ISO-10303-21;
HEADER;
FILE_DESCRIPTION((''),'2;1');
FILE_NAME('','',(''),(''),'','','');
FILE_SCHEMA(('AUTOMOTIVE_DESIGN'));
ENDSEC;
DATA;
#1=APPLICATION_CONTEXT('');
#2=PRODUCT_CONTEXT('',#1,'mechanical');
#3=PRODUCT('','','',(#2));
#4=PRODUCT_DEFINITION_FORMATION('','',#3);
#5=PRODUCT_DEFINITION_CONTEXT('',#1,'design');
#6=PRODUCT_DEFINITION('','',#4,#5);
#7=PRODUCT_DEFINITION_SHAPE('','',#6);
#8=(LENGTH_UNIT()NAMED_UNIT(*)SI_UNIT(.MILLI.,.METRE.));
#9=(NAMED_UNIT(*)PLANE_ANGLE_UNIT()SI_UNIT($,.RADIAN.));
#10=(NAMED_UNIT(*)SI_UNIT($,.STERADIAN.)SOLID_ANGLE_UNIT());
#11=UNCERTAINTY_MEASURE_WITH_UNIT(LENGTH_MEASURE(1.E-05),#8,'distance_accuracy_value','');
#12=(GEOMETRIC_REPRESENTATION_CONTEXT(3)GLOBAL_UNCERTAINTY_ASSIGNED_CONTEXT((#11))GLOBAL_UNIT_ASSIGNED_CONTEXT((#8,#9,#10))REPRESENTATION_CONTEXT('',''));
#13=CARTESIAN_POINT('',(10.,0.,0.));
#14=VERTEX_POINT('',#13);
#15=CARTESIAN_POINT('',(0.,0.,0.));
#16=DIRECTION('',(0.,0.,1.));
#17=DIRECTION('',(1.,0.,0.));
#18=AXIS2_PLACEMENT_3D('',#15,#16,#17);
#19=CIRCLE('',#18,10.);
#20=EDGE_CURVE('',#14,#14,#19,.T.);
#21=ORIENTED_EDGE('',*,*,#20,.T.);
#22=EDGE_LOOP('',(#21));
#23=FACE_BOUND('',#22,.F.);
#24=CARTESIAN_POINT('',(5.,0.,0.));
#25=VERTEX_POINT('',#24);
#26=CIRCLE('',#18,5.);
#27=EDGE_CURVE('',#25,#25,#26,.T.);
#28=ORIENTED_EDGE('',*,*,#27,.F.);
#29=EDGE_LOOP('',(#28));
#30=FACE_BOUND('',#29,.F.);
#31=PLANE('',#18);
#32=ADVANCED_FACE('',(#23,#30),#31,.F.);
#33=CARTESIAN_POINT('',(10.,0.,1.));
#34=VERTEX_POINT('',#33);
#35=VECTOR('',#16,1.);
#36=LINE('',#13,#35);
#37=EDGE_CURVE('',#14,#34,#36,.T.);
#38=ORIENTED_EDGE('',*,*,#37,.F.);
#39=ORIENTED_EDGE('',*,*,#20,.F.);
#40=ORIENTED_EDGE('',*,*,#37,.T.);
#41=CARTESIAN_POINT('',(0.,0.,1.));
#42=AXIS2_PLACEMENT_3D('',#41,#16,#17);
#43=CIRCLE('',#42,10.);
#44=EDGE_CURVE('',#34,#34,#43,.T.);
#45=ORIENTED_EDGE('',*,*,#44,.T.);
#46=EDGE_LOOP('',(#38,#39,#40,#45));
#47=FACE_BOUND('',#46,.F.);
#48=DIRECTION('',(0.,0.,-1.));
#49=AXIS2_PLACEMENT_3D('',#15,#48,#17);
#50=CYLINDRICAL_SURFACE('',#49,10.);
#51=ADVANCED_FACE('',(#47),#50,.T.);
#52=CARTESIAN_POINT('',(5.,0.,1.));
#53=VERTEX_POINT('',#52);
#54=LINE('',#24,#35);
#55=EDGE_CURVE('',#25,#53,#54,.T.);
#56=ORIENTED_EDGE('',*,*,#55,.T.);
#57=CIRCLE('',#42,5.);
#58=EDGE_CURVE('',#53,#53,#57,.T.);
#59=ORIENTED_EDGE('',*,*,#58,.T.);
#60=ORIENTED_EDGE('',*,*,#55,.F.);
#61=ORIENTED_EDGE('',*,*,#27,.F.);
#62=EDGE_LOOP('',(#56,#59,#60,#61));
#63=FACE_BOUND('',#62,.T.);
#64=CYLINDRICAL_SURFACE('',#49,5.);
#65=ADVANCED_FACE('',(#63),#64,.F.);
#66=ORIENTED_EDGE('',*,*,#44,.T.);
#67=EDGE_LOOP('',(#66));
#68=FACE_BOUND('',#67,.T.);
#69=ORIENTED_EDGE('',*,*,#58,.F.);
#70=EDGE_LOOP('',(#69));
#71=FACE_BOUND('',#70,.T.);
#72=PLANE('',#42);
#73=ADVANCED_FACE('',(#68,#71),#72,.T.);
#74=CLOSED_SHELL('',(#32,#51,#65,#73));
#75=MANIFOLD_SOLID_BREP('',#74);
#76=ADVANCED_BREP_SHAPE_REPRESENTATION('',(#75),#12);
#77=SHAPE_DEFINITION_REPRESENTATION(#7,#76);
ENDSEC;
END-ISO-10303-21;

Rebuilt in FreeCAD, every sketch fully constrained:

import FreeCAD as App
import Part
import Sketcher

doc = App.newDocument("Part")
body = doc.addObject("PartDesign::Body", "Body")

sketch1 = body.newObject("Sketcher::SketchObject", "Sketch")
sketch1.AttachmentSupport = (doc.getObject("XY_Plane"), [""])
sketch1.MapMode = "FlatFace"
sketch1.addGeometry(Part.Circle(App.Vector(0, 0, 0), App.Vector(0, 0, 1), 10), False)
sketch1.addGeometry(Part.Circle(App.Vector(0, 0, 0), App.Vector(0, 0, 1), 5), False)
sketch1.addConstraint(Sketcher.Constraint("Coincident", 0, 3, -1, 1))
sketch1.addConstraint(Sketcher.Constraint("Coincident", 1, 3, -1, 1))
sketch1.addConstraint(Sketcher.Constraint("Diameter", 0, 20.0))
sketch1.addConstraint(Sketcher.Constraint("Diameter", 1, 10.0))
pad1 = body.newObject("PartDesign::Pad", "Pad")
pad1.Profile = sketch1
pad1.Length = 1

doc.recompute()
